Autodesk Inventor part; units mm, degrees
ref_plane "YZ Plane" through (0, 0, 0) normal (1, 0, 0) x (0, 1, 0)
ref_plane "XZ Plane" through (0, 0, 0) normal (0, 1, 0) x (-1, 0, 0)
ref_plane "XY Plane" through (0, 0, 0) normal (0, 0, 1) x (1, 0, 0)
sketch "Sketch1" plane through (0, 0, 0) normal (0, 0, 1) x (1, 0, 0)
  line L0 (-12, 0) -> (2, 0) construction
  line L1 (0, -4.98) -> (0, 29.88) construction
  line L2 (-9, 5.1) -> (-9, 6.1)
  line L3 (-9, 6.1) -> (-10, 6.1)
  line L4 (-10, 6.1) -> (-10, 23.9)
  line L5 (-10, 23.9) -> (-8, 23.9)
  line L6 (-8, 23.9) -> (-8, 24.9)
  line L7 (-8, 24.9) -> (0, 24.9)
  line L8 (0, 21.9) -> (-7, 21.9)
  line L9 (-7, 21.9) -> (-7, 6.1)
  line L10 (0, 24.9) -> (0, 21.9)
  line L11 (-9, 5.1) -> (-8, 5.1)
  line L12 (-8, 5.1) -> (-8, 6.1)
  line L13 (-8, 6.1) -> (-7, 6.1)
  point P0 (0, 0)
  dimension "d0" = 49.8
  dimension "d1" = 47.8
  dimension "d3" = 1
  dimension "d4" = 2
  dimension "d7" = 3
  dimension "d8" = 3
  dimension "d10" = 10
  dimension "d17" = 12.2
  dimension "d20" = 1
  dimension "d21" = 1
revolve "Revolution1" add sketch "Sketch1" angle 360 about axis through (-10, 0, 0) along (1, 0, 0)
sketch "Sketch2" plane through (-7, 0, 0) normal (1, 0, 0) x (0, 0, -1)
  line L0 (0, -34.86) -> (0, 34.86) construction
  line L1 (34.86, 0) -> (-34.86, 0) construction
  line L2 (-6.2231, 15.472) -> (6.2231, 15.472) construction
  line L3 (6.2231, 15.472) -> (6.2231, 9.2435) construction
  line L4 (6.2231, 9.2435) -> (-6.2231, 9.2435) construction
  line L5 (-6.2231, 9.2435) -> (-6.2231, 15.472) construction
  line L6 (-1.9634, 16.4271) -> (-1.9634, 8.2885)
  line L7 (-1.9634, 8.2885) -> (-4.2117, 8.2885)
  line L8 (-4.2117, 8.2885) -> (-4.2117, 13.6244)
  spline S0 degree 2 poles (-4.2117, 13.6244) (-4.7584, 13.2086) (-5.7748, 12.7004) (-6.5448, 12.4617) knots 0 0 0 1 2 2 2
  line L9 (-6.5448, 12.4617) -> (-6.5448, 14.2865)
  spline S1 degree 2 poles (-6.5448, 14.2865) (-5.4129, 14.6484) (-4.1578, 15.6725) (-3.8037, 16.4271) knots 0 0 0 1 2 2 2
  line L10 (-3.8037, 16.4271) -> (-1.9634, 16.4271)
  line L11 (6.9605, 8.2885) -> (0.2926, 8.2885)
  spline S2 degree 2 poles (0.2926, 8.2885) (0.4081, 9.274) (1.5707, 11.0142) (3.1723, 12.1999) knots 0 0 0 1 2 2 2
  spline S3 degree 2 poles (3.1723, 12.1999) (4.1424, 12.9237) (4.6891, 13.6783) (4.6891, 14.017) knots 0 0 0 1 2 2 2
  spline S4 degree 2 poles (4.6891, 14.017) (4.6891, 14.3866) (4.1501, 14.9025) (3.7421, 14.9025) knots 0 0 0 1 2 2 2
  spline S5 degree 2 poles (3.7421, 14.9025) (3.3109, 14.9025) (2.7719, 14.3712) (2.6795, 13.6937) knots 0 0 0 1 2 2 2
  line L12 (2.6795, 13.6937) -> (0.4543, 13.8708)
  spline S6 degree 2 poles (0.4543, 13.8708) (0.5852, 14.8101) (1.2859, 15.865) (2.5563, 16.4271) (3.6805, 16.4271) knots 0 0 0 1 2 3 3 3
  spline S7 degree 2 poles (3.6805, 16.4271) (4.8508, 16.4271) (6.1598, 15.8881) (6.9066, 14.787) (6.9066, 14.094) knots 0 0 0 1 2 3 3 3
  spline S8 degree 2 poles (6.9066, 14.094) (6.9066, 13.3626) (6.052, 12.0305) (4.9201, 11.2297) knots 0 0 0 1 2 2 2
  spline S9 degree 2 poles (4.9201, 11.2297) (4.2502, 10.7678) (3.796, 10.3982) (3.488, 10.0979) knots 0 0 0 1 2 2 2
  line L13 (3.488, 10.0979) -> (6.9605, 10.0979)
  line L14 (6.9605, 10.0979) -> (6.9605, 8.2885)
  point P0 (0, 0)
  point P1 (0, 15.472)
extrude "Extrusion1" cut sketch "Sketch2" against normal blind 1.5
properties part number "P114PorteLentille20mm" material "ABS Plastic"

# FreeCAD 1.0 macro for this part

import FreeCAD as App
import Part
import Sketcher

V = App.Vector
Q = App.Units.Quantity

doc = App.newDocument("Part")
params = doc.addObject("Spreadsheet::Sheet", "Params")
for row, (alias, value) in enumerate([
    ("sketch1_width", "1 mm"),
    ("sketch1_height", "3 mm"),
    ("sketch1_height2", "15.8 mm"),
    ("revolution_angle", "360 deg"),
    ("pocket1_length", "1.5 mm"),
], start=1):
    params.set(f"A{row}", alias)
    params.set(f"B{row}", "=" + value)
    params.setAlias(f"B{row}", alias)

body = doc.addObject("PartDesign::Body", "Body")

# Sketch on XY plane
sketch1 = body.newObject("Sketcher::SketchObject", "Sketch")
sketch1.AttachmentSupport = (doc.getObject("XY_Plane"), [""])
sketch1.MapMode = "FlatFace"
sketch1.addGeometry([
    Part.LineSegment(V(-9, 6.1, 0), V(-9, 5.1, 0)),  # 0
    Part.LineSegment(V(-9, 5.1, 0), V(-8, 5.1, 0)),  # 1
    Part.LineSegment(V(-8, 5.1, 0), V(-8, 6.1, 0)),  # 2
    Part.LineSegment(V(-8, 6.1, 0), V(-7, 6.1, 0)),  # 3
    Part.LineSegment(V(-7, 6.1, 0), V(-7, 21.9, 0)),  # 4
    Part.LineSegment(V(-7, 21.9, 0), V(0, 21.9, 0)),  # 5
    Part.LineSegment(V(0, 21.9, 0), V(0, 24.9, 0)),  # 6
    Part.LineSegment(V(0, 24.9, 0), V(-8, 24.9, 0)),  # 7
    Part.LineSegment(V(-8, 24.9, 0), V(-8, 23.9, 0)),  # 8
    Part.LineSegment(V(-8, 23.9, 0), V(-10, 23.9, 0)),  # 9
    Part.LineSegment(V(-10, 23.9, 0), V(-10, 6.1, 0)),  # 10
    Part.LineSegment(V(-10, 6.1, 0), V(-9, 6.1, 0)),  # 11
], False)
sketch1.addConstraint([
    Sketcher.Constraint("Coincident", 0, 2, 1, 1),
    Sketcher.Constraint("Coincident", 1, 2, 2, 1),
    Sketcher.Constraint("Coincident", 2, 2, 3, 1),
    Sketcher.Constraint("Coincident", 3, 2, 4, 1),
    Sketcher.Constraint("Coincident", 4, 2, 5, 1),
    Sketcher.Constraint("Coincident", 5, 2, 6, 1),
    Sketcher.Constraint("Coincident", 6, 2, 7, 1),
    Sketcher.Constraint("Coincident", 7, 2, 8, 1),
    Sketcher.Constraint("Coincident", 8, 2, 9, 1),
    Sketcher.Constraint("Coincident", 9, 2, 10, 1),
    Sketcher.Constraint("Coincident", 10, 2, 11, 1),
    Sketcher.Constraint("Coincident", 11, 2, 0, 1),
    Sketcher.Constraint("Vertical", 0),
    Sketcher.Constraint("Horizontal", 1),
    Sketcher.Constraint("Vertical", 2),
    Sketcher.Constraint("Horizontal", 3),
    Sketcher.Constraint("Vertical", 4),
    Sketcher.Constraint("Horizontal", 5),
    Sketcher.Constraint("Vertical", 6),
    Sketcher.Constraint("Horizontal", 7),
    Sketcher.Constraint("Vertical", 8),
    Sketcher.Constraint("Horizontal", 9),
    Sketcher.Constraint("Vertical", 10),
    Sketcher.Constraint("Horizontal", 11),
    Sketcher.Constraint("PointOnObject", 5, 2, -2),
    Sketcher.Constraint("Horizontal", 3, 2, 10, 2),
    Sketcher.Constraint("Vertical", 2, 2, 7, 2),
    Sketcher.Constraint("Equal", 1, 3),
    Sketcher.Constraint("Equal", 3, 11),
    Sketcher.Constraint("Equal", 11, 0),
    Sketcher.Constraint("Equal", 2, 8),
    Sketcher.Constraint("DistanceX", 1, 1, 1, 2, Q("1 mm")),
    Sketcher.Constraint("DistanceY", 6, 1, 6, 2, Q("3 mm")),
    Sketcher.Constraint("DistanceX", 9, 2, -1, 1, Q("10 mm")),
    Sketcher.Constraint("DistanceY", 4, 1, 4, 2, Q("15.8 mm")),
    Sketcher.Constraint("DistanceY", -1, 1, 0, 2, Q("5.1 mm")),
])
sketch1.setExpression("Constraints[31]", "Params.sketch1_width")
sketch1.setExpression("Constraints[32]", "Params.sketch1_height")
sketch1.setExpression("Constraints[34]", "Params.sketch1_height2")
revolution = body.newObject("PartDesign::Revolution", "Revolution")
revolution.Profile = sketch1
revolution.ReferenceAxis = (sketch1, ["H_Axis"])
revolution.setExpression("Angle", "Params.revolution_angle")

# Sketch on YZ plane
sketch2 = body.newObject("Sketcher::SketchObject", "Sketch001")
sketch2.AttachmentSupport = (doc.getObject("YZ_Plane"), [""])
sketch2.MapMode = "FlatFace"
sketch2.AttachmentOffset = App.Placement(V(0, 0, -7), App.Rotation())
sketch2.addGeometry([
    Part.LineSegment(V(8.2885, 1.9634, 0), V(16.4271, 1.9634, 0)),  # 0
    Part.LineSegment(V(16.4271, 1.9634, 0), V(16.4271, 3.8037, 0)),  # 1
    Part.BSplineCurve([V(14.2865, 6.5448, 0), V(14.6484, 5.4129, 0), V(15.6725, 4.1578, 0), V(16.4271, 3.8037, 0)], [3, 1, 3], [0, 1, 2], False, 2, [1, 1, 1, 1], False),  # 2
    Part.LineSegment(V(14.2865, 6.5448, 0), V(12.4617, 6.5448, 0)),  # 3
    Part.BSplineCurve([V(13.6244, 4.2117, 0), V(13.2086, 4.7584, 0), V(12.7004, 5.7748, 0), V(12.4617, 6.5448, 0)], [3, 1, 3], [0, 1, 2], False, 2, [1, 1, 1, 1], False),  # 4
    Part.LineSegment(V(13.6244, 4.2117, 0), V(8.2885, 4.2117, 0)),  # 5
    Part.LineSegment(V(8.2885, 4.2117, 0), V(8.2885, 1.9634, 0)),  # 6
    Part.LineSegment(V(8.2885, -0.2926, 0), V(8.2885, -6.9605, 0)),  # 7
    Part.LineSegment(V(8.2885, -6.9605, 0), V(10.0979, -6.9605, 0)),  # 8
    Part.LineSegment(V(10.0979, -6.9605, 0), V(10.0979, -3.488, 0)),  # 9
    Part.BSplineCurve([V(11.2297, -4.9201, 0), V(10.7678, -4.2502, 0), V(10.3982, -3.796, 0), V(10.0979, -3.488, 0)], [3, 1, 3], [0, 1, 2], False, 2, [1, 1, 1, 1], False),  # 10
    Part.BSplineCurve([V(14.094, -6.9066, 0), V(13.3626, -6.9066, 0), V(12.0305, -6.052, 0), V(11.2297, -4.9201, 0)], [3, 1, 3], [0, 1, 2], False, 2, [1, 1, 1, 1], False),  # 11
    Part.BSplineCurve([V(16.4271, -3.6805, 0), V(16.4271, -4.8508, 0), V(15.8881, -6.1598, 0), V(14.787, -6.9066, 0), V(14.094, -6.9066, 0)], [3, 1, 1, 3], [0, 1, 2, 3], False, 2, [1, 1, 1, 1, 1], False),  # 12
    Part.BSplineCurve([V(13.8708, -0.4543, 0), V(14.8101, -0.5852, 0), V(15.865, -1.2859, 0), V(16.4271, -2.5563, 0), V(16.4271, -3.6805, 0)], [3, 1, 1, 3], [0, 1, 2, 3], False, 2, [1, 1, 1, 1, 1], False),  # 13
    Part.LineSegment(V(13.8708, -0.4543, 0), V(13.6937, -2.6795, 0)),  # 14
    Part.BSplineCurve([V(14.9025, -3.7421, 0), V(14.9025, -3.3109, 0), V(14.3712, -2.7719, 0), V(13.6937, -2.6795, 0)], [3, 1, 3], [0, 1, 2], False, 2, [1, 1, 1, 1], False),  # 15
    Part.BSplineCurve([V(14.017, -4.6891, 0), V(14.3866, -4.6891, 0), V(14.9025, -4.1501, 0), V(14.9025, -3.7421, 0)], [3, 1, 3], [0, 1, 2], False, 2, [1, 1, 1, 1], False),  # 16
    Part.BSplineCurve([V(12.1999, -3.1723, 0), V(12.9237, -4.1424, 0), V(13.6783, -4.6891, 0), V(14.017, -4.6891, 0)], [3, 1, 3], [0, 1, 2], False, 2, [1, 1, 1, 1], False),  # 17
    Part.BSplineCurve([V(8.2885, -0.2926, 0), V(9.274, -0.4081, 0), V(11.0142, -1.5707, 0), V(12.1999, -3.1723, 0)], [3, 1, 3], [0, 1, 2], False, 2, [1, 1, 1, 1], False),  # 18
], False)
sketch2.addConstraint([
    Sketcher.Constraint("Block", 2),
    Sketcher.Constraint("Block", 4),
    Sketcher.Constraint("Block", 10),
    Sketcher.Constraint("Block", 11),
    Sketcher.Constraint("Block", 12),
    Sketcher.Constraint("Block", 13),
    Sketcher.Constraint("Block", 15),
    Sketcher.Constraint("Block", 16),
    Sketcher.Constraint("Block", 17),
    Sketcher.Constraint("Block", 18),
    Sketcher.Constraint("Coincident", 0, 2, 1, 1),
    Sketcher.Constraint("Coincident", 1, 2, 2, 2),
    Sketcher.Constraint("Coincident", 2, 1, 3, 1),
    Sketcher.Constraint("Coincident", 3, 2, 4, 2),
    Sketcher.Constraint("Coincident", 4, 1, 5, 1),
    Sketcher.Constraint("Coincident", 5, 2, 6, 1),
    Sketcher.Constraint("Coincident", 6, 2, 0, 1),
    Sketcher.Constraint("Coincident", 7, 2, 8, 1),
    Sketcher.Constraint("Coincident", 8, 2, 9, 1),
    Sketcher.Constraint("Coincident", 9, 2, 10, 2),
    Sketcher.Constraint("Coincident", 13, 1, 14, 1),
    Sketcher.Constraint("Coincident", 14, 2, 15, 2),
    Sketcher.Constraint("Coincident", 18, 1, 7, 1),
    Sketcher.Constraint("Horizontal", 0),
    Sketcher.Constraint("Vertical", 1),
    Sketcher.Constraint("Horizontal", 5),
    Sketcher.Constraint("Vertical", 6),
    Sketcher.Constraint("Vertical", 7),
    Sketcher.Constraint("Horizontal", 8),
    Sketcher.Constraint("Vertical", 9),
    Sketcher.Constraint("Vertical", 6, 2, 7, 2),
    Sketcher.Constraint("DistanceY", 7, 2, 7, 1, Q("6.668 mm")),
    Sketcher.Constraint("DistanceY", 1, 1, 1, 2, Q("1.8403 mm")),
])
pocket1 = body.newObject("PartDesign::Pocket", "Pocket")
pocket1.Profile = sketch2
pocket1.setExpression("Length", "Params.pocket1_length")

doc.recompute()
